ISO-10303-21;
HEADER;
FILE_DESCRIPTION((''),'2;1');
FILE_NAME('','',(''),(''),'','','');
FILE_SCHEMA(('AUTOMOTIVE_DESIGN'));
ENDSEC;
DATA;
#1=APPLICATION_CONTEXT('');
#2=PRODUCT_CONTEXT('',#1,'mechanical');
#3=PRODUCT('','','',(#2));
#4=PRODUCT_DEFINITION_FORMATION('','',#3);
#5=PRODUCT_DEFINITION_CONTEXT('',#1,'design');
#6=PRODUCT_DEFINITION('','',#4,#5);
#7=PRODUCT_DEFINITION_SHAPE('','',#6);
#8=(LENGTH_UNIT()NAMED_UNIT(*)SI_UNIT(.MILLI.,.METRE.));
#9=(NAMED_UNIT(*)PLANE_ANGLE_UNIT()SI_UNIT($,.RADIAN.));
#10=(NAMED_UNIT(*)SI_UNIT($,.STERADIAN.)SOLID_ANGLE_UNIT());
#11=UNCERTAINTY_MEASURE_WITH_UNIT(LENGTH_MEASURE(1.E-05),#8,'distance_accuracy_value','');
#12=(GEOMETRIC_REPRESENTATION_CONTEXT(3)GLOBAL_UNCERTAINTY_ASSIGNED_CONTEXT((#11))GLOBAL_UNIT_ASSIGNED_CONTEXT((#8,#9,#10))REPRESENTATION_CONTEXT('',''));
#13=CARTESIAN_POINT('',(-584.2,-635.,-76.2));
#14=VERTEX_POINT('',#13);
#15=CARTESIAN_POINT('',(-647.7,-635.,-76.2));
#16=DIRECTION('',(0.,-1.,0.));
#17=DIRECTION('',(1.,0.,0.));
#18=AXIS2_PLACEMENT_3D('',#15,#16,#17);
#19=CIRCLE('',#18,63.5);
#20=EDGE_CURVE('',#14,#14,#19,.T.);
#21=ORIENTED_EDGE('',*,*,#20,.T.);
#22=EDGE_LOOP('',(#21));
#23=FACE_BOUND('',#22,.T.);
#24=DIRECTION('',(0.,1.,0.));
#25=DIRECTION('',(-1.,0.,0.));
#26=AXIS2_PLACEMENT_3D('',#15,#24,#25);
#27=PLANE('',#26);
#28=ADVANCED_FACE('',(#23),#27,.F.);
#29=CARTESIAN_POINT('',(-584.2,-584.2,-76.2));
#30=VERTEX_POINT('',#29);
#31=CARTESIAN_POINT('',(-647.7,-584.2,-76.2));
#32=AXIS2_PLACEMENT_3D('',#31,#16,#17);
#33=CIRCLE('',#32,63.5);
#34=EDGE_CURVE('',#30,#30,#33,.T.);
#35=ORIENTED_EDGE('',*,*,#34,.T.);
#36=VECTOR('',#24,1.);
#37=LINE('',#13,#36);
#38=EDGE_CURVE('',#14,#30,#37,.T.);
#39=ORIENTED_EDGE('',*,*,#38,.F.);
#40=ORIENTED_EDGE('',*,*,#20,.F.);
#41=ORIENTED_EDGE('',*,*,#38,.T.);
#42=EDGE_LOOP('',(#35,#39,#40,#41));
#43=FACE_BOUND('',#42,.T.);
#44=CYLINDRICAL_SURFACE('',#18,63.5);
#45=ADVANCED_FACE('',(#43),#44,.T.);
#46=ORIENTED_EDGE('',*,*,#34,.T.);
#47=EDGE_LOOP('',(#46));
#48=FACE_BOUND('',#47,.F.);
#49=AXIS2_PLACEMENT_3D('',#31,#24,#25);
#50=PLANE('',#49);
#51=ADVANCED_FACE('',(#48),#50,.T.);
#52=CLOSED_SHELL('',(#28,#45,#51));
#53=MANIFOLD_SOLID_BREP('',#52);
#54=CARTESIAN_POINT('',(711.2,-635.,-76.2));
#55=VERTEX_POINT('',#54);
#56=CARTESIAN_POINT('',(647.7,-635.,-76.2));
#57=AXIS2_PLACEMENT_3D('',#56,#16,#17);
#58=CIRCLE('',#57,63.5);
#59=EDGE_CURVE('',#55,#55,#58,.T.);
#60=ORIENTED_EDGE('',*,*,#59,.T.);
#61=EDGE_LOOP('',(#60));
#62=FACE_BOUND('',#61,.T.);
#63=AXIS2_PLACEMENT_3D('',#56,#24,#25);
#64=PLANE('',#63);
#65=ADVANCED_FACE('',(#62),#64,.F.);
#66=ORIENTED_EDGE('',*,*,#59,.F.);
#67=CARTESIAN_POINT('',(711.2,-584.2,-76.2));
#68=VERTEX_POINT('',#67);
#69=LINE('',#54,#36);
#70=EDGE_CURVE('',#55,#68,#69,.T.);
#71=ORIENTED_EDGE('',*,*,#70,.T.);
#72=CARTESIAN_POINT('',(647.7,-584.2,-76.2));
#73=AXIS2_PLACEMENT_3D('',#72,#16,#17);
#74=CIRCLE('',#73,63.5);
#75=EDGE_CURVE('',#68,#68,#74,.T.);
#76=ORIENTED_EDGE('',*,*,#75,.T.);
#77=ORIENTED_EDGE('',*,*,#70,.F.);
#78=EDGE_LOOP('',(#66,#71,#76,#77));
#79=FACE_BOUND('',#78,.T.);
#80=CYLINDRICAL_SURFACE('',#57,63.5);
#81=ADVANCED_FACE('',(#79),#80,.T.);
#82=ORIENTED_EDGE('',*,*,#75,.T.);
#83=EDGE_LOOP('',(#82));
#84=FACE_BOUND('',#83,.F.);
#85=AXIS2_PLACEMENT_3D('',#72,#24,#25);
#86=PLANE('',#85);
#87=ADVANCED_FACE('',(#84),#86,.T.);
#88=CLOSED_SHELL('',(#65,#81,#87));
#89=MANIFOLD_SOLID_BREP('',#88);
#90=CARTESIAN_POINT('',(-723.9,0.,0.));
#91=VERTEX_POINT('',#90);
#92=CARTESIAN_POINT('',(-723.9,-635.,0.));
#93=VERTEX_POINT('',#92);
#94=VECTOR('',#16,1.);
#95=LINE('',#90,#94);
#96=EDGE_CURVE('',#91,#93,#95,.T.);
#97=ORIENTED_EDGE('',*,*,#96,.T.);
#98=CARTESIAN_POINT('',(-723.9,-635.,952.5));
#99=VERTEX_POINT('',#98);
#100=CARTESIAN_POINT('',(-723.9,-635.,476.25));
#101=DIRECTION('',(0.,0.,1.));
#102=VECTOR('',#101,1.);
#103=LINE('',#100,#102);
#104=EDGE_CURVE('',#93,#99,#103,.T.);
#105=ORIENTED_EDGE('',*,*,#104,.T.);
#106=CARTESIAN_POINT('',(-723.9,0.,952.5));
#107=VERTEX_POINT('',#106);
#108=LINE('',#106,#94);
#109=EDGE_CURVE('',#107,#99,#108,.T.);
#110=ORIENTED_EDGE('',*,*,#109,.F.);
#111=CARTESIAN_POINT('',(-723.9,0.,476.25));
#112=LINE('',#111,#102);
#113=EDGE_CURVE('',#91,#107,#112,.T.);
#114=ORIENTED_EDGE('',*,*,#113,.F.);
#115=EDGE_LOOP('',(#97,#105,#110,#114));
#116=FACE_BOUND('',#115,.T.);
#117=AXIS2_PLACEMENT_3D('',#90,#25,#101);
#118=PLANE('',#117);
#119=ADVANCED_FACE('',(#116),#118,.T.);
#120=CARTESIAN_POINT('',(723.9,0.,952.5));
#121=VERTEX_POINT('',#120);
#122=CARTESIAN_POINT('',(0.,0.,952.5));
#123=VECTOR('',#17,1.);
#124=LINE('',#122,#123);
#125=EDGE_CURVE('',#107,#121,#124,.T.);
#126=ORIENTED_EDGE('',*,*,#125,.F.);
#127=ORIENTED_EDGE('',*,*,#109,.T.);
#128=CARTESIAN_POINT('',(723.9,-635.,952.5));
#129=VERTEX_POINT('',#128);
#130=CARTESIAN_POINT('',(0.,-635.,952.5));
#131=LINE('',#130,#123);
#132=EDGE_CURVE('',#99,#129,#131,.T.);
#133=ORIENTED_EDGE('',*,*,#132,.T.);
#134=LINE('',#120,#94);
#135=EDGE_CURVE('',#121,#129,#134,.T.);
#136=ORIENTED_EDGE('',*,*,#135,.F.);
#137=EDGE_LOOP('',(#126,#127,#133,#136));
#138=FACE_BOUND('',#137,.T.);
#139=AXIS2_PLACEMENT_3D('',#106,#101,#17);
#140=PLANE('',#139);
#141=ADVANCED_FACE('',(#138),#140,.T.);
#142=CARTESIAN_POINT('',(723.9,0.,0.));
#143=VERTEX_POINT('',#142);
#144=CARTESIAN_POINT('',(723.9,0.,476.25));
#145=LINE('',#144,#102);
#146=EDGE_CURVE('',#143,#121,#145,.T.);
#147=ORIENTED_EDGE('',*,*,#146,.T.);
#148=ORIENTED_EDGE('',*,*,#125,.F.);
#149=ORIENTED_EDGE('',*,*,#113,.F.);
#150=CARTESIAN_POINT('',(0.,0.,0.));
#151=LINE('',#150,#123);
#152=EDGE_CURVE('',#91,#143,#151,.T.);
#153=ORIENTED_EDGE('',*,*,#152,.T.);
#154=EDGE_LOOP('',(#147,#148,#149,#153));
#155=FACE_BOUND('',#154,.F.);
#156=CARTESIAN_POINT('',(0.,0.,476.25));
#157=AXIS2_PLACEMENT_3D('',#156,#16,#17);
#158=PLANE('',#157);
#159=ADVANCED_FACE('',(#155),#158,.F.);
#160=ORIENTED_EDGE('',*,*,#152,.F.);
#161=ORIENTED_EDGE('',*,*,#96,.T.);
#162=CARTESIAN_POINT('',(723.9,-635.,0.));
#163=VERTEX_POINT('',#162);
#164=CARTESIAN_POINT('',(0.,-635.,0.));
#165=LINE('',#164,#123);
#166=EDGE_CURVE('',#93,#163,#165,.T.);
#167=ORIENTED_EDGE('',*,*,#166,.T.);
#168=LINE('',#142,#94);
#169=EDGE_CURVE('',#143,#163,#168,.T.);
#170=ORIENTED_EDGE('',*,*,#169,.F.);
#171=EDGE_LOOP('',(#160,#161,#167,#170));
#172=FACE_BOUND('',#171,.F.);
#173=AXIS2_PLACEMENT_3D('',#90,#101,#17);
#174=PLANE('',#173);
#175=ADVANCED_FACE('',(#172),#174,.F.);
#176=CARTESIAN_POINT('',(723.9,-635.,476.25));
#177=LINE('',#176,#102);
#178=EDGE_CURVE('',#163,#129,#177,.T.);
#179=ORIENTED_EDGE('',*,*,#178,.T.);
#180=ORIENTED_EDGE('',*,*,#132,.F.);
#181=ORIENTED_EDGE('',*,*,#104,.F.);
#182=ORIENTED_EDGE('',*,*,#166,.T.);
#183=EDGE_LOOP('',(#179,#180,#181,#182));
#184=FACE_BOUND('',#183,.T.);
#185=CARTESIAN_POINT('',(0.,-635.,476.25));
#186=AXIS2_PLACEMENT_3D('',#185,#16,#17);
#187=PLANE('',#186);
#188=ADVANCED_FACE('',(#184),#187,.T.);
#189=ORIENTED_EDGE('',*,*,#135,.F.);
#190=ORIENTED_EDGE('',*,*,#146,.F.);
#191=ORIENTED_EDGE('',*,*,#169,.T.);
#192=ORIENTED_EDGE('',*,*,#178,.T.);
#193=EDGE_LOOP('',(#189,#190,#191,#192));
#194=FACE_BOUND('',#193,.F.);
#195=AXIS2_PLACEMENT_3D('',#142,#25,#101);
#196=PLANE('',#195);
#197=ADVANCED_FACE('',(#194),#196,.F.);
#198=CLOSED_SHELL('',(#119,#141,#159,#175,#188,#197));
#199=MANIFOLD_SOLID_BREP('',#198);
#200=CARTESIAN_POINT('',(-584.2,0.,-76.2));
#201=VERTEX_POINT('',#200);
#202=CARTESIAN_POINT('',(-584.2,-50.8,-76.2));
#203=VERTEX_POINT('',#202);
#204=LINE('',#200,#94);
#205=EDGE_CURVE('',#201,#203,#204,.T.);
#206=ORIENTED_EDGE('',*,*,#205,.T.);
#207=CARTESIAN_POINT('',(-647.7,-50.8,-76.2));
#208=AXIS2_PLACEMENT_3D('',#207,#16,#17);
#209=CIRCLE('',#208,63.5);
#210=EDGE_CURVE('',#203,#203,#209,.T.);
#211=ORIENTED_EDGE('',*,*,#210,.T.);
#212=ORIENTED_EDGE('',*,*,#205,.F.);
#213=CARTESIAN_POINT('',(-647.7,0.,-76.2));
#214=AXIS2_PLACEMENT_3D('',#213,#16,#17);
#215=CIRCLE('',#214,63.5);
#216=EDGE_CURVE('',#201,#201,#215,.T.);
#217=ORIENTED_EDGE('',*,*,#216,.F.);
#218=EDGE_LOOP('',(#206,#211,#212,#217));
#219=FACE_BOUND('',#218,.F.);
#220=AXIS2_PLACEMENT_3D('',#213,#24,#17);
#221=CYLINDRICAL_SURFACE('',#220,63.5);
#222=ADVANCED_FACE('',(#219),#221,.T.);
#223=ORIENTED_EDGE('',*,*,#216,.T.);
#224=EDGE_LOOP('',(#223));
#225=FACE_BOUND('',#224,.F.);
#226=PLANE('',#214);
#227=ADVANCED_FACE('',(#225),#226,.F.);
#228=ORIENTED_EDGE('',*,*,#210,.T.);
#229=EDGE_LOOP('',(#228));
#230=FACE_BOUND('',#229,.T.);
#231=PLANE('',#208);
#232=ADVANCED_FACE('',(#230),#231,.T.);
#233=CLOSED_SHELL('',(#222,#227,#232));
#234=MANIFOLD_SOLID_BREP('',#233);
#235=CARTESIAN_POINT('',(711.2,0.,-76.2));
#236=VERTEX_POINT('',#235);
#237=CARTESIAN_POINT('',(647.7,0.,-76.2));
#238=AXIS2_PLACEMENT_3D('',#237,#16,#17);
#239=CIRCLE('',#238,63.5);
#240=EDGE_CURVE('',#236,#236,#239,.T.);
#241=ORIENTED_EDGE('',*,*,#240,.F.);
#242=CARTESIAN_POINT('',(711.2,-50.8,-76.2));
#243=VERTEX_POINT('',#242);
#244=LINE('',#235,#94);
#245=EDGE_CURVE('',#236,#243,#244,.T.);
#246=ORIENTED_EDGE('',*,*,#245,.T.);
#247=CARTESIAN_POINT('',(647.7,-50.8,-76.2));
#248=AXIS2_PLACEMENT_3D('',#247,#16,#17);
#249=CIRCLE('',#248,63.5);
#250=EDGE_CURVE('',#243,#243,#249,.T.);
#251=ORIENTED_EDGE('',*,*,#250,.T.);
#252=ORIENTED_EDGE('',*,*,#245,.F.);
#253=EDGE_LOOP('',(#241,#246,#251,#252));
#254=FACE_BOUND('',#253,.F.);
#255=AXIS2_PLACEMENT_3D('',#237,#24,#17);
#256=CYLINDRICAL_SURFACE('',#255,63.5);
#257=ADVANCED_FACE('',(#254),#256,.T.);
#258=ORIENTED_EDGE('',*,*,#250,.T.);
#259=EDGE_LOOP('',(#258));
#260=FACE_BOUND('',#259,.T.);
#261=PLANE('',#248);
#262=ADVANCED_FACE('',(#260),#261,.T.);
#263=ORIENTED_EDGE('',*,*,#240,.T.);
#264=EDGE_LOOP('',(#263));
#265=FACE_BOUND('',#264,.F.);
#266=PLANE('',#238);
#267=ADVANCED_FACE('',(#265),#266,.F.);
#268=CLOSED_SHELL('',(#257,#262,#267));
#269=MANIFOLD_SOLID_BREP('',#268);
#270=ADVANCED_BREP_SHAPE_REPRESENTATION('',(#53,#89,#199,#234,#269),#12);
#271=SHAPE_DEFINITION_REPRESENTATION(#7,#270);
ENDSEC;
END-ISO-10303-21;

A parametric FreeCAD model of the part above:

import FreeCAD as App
import Part
import Sketcher
Q = App.Units.Quantity

doc = App.newDocument("Part")
params = doc.addObject("Spreadsheet::Sheet", "Params")
for row, (alias, value) in enumerate([
    ("sketch1_width", "57 in"),
    ("sketch1_height", "37.5 in"),
    ("pad1_length", "25 in"),
    ("sketch2_diameter", "5 in"),
    ("pad2_length", "2 in"),
    ("sketch3_diameter", "5 in"),
    ("pad3_length", "2 in"),
], start=1):
    params.set(f"A{row}", alias)
    params.set(f"B{row}", "=" + value)
    params.setAlias(f"B{row}", alias)

body = doc.addObject("PartDesign::Body", "Body")

# Sketch on XZ plane
sketch1 = body.newObject("Sketcher::SketchObject", "Sketch")
sketch1.AttachmentSupport = (doc.getObject("XZ_Plane"), [""])
sketch1.MapMode = "FlatFace"
sketch1.addGeometry([
    Part.LineSegment(App.Vector(-724, 952, 0), App.Vector(-724, 0, 0)),
    Part.LineSegment(App.Vector(-724, 0, 0), App.Vector(724, 0, 0)),
    Part.LineSegment(App.Vector(724, 0, 0), App.Vector(724, 952, 0)),
    Part.LineSegment(App.Vector(724, 952, 0), App.Vector(-724, 952, 0)),
], False)
sketch1.addConstraint([
    Sketcher.Constraint("Coincident", 0, 2, 1, 1),
    Sketcher.Constraint("Coincident", 1, 2, 2, 1),
    Sketcher.Constraint("Coincident", 2, 2, 3, 1),
    Sketcher.Constraint("Coincident", 3, 2, 0, 1),
    Sketcher.Constraint("Vertical", 0),
    Sketcher.Constraint("Horizontal", 1),
    Sketcher.Constraint("Vertical", 2),
    Sketcher.Constraint("Horizontal", 3),
    Sketcher.Constraint("Symmetric", 0, 2, 1, 2, -1, 1),
    Sketcher.Constraint("DistanceX", 1, 1, 1, 2, Q("57 in")),
    Sketcher.Constraint("DistanceY", 0, 2, 0, 1, Q("37.5 in")),
])
sketch1.setExpression("Constraints[9]", "Params.sketch1_width")
sketch1.setExpression("Constraints[10]", "Params.sketch1_height")
pad1 = body.newObject("PartDesign::Pad", "Pad")
pad1.Profile = sketch1
pad1.setExpression("Length", "Params.pad1_length")
body2 = doc.addObject("PartDesign::Body", "Body001")

# Sketch on XZ plane
sketch2 = body2.newObject("Sketcher::SketchObject", "Sketch001")
sketch2.AttachmentSupport = (doc.getObject("XZ_Plane001"), [""])
sketch2.MapMode = "FlatFace"
sketch2.addGeometry(Part.Circle(App.Vector(648, -76, 0), App.Vector(0, 0, 1), 64), False)
sketch2.addConstraint([
    Sketcher.Constraint("Diameter", 0, Q("5 in")),
    Sketcher.Constraint("DistanceY", 0, 3, -1, 1, Q("3 in")),
    Sketcher.Constraint("DistanceX", -1, 1, 0, 3, Q("25.5 in")),
])
sketch2.setExpression("Constraints[0]", "Params.sketch2_diameter")
pad2 = body2.newObject("PartDesign::Pad", "Pad001")
pad2.Profile = sketch2
pad2.setExpression("Length", "Params.pad2_length")
body3 = doc.addObject("PartDesign::Body", "Body002")

# Sketch on XZ plane
sketch3 = body3.newObject("Sketcher::SketchObject", "Sketch002")
sketch3.AttachmentSupport = (doc.getObject("XZ_Plane002"), [""])
sketch3.MapMode = "FlatFace"
sketch3.addGeometry(Part.Circle(App.Vector(-648, -76, 0), App.Vector(0, 0, 1), 64), False)
sketch3.addConstraint([
    Sketcher.Constraint("Diameter", 0, Q("5 in")),
    Sketcher.Constraint("DistanceY", 0, 3, -1, 1, Q("3 in")),
    Sketcher.Constraint("DistanceX", 0, 3, -1, 1, Q("25.5 in")),
])
sketch3.setExpression("Constraints[0]", "Params.sketch3_diameter")
pad3 = body3.newObject("PartDesign::Pad", "Pad002")
pad3.Profile = sketch3
pad3.setExpression("Length", "Params.pad3_length")
body4 = doc.addObject("PartDesign::Body", "Body003")
doc.recompute()

mirroring = doc.addObject("Part::Mirroring", "Mirroring")
mirroring.Source = body2
mirroring.Base = App.Vector(0, -317.5, 0)
mirroring.Normal = App.Vector(0, -1, 0)
body4.BaseFeature = mirroring
doc.recompute()
body5 = doc.addObject("PartDesign::Body", "Body004")
doc.recompute()

mirroring2 = doc.addObject("Part::Mirroring", "Mirroring001")
mirroring2.Source = body3
mirroring2.Base = App.Vector(0, -317.5, 0)
mirroring2.Normal = App.Vector(0, -1, 0)
body5.BaseFeature = mirroring2
doc.recompute()
mirroring.Visibility = False
mirroring2.Visibility = False

doc.recompute()
